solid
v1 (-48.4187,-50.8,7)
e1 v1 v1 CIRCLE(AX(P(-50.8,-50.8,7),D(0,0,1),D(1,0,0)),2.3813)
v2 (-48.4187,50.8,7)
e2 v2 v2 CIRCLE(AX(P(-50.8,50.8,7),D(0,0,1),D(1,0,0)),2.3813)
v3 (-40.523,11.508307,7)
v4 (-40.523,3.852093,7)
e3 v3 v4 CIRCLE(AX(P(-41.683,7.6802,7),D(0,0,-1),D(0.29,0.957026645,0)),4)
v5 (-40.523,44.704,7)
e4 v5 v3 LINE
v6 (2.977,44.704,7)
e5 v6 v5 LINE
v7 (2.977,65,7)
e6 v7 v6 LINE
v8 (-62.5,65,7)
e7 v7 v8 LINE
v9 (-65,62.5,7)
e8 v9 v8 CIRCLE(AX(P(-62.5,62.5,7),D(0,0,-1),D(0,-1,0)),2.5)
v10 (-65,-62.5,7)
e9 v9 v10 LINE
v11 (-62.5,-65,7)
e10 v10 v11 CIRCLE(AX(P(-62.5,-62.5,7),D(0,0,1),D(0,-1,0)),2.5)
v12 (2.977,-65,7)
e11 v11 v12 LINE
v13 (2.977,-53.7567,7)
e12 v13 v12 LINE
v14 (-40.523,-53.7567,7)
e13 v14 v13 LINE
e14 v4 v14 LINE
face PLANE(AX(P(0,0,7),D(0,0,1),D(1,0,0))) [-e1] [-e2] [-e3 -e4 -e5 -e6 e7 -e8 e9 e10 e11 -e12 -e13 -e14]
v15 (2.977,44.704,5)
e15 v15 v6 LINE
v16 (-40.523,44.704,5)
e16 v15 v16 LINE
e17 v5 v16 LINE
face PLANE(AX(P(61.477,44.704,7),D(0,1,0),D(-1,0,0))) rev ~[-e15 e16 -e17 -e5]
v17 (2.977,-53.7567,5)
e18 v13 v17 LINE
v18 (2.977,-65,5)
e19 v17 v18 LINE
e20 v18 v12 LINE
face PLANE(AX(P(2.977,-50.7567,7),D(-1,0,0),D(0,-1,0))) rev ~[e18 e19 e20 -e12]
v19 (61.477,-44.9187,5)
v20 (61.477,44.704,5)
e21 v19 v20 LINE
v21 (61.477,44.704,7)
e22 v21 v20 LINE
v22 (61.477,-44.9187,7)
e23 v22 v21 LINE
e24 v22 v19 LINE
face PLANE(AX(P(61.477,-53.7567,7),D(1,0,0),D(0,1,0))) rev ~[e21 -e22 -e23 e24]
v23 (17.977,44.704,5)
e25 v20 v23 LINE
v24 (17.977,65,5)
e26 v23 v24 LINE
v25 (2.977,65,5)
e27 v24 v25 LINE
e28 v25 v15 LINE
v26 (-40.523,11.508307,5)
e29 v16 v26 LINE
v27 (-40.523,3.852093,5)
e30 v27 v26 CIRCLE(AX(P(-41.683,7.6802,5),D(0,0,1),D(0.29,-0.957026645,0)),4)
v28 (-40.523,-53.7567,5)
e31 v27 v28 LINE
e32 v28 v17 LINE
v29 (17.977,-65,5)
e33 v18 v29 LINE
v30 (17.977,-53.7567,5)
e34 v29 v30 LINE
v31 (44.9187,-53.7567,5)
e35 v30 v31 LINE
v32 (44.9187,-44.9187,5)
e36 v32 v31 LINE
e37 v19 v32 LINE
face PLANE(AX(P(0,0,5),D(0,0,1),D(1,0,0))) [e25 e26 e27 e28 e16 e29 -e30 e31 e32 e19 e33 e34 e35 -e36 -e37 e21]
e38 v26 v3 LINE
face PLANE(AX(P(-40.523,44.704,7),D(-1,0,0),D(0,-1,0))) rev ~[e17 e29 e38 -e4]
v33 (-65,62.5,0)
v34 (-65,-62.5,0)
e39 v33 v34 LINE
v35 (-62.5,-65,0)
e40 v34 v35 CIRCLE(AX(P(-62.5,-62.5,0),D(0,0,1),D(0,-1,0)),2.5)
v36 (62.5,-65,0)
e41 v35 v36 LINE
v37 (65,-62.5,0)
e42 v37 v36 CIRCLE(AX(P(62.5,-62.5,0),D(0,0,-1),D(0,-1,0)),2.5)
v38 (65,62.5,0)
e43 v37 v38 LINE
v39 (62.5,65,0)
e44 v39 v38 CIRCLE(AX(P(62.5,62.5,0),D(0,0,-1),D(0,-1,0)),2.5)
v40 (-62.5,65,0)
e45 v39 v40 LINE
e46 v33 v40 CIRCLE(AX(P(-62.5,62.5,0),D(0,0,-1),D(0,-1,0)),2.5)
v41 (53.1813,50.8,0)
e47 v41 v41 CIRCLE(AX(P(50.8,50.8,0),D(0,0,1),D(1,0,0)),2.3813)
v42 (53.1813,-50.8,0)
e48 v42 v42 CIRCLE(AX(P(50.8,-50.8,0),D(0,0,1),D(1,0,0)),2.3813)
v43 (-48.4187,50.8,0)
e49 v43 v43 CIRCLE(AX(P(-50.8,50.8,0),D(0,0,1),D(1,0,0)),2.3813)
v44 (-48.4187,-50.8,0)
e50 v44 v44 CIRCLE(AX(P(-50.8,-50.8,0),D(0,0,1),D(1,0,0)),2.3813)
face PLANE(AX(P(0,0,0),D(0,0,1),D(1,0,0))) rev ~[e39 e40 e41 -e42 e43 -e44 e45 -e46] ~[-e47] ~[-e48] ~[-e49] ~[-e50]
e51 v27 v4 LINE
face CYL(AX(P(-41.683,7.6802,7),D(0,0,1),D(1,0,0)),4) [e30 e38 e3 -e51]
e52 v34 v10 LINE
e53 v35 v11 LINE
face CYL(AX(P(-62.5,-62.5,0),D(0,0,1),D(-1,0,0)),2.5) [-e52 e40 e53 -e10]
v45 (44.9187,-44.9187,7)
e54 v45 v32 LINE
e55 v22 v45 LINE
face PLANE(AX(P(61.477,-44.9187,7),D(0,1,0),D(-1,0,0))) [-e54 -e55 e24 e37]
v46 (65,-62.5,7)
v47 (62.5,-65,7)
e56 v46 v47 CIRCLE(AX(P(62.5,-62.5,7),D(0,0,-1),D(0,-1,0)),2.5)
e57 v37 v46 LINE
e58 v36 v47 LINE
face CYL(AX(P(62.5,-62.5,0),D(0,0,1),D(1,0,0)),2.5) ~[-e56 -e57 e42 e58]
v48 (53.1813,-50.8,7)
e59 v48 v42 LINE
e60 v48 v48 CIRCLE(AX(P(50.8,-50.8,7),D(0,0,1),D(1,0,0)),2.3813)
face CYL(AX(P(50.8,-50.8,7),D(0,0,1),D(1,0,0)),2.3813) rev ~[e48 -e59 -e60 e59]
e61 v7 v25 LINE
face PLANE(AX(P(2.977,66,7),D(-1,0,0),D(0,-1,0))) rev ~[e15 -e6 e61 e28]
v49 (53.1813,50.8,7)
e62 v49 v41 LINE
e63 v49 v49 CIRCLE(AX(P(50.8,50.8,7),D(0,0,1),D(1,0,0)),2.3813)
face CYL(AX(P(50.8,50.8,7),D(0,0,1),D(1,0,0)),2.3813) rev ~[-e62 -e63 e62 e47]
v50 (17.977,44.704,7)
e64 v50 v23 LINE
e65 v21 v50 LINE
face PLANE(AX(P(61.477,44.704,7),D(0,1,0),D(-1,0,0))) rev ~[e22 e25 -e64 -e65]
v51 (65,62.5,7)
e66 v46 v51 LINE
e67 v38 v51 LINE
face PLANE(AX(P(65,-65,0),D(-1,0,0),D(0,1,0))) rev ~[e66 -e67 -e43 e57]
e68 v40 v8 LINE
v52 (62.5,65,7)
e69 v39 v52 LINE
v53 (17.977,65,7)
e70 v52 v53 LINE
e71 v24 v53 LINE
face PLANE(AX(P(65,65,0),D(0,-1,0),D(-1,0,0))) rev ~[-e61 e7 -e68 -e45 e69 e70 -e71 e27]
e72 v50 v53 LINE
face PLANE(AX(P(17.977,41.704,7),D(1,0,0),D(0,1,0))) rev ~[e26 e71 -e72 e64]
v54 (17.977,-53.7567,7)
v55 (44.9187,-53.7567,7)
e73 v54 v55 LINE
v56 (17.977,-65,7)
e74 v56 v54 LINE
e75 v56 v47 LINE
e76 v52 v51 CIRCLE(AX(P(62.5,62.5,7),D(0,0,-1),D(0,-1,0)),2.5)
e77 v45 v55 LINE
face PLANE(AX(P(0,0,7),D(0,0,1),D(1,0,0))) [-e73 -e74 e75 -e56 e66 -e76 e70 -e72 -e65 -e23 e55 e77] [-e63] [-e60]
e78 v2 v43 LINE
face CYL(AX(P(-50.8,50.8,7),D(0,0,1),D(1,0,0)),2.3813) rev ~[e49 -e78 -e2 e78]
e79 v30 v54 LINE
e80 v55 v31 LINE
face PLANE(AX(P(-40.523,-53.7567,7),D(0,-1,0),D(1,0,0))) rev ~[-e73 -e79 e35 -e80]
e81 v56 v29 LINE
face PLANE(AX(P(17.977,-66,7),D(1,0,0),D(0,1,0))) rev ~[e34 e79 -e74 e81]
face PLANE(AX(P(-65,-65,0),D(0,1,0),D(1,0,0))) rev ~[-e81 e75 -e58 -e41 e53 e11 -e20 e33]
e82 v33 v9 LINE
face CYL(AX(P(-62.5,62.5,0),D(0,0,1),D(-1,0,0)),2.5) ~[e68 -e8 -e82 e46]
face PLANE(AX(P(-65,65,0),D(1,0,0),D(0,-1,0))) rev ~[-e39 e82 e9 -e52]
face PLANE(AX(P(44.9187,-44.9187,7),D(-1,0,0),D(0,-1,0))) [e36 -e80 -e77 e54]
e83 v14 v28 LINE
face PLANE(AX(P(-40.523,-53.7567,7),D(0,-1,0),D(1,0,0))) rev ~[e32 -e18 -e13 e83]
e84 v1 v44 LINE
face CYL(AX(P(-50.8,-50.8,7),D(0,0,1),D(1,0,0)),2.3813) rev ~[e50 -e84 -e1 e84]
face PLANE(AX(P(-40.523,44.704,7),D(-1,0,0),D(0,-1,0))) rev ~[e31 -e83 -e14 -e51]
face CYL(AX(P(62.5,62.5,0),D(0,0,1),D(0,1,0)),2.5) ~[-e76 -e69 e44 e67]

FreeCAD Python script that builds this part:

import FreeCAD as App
import Part
import Sketcher


def edges_at(feature, points):
    """Names of the edges that pass closest to the given points."""
    edges = feature.Shape.Edges
    near = lambda p: min(range(len(edges)), key=lambda i: edges[i].distToShape(Part.Vertex(*p))[0])
    return sorted({f"Edge{near(p) + 1}" for p in points})


def add_polygon(sketch, points):
    """Adds a closed chain of lines whose ends are joined by coincident constraints."""
    first, n = sketch.GeometryCount, len(points)
    for a, b in zip(points, points[1:] + points[:1]):
        sketch.addGeometry(Part.LineSegment(App.Vector(*a, 0), App.Vector(*b, 0)), False)
    for i in range(n):
        sketch.addConstraint(Sketcher.Constraint("Coincident", first + i, 2, first + (i + 1) % n, 1))

doc = App.newDocument("Part")
body = doc.addObject("PartDesign::Body", "Body")

# Sketch on XY plane
sketch1 = body.newObject("Sketcher::SketchObject", "Sketch")
sketch1.AttachmentSupport = (doc.getObject("XY_Plane"), [""])
sketch1.MapMode = "FlatFace"
add_polygon(sketch1, [(-65, 65), (-65, -65), (65, -65), (65, 65)])  # lines 0-3
sketch1.addConstraint([
    Sketcher.Constraint("Vertical", 0),
    Sketcher.Constraint("Horizontal", 1),
    Sketcher.Constraint("Vertical", 2),
    Sketcher.Constraint("Horizontal", 3),
    Sketcher.Constraint("Symmetric", 0, 2, 2, 2, -1, 1),
    Sketcher.Constraint("Equal", 3, 0),
    Sketcher.Constraint("DistanceX", 1, 1, 1, 2, 130.0),
])
pad1 = body.newObject("PartDesign::Pad", "Pad")
pad1.Profile = sketch1
pad1.Length = 7
doc.recompute()

fillet = body.newObject("PartDesign::Fillet", "Fillet")
fillet.Base = (pad1, edges_at(pad1, [
    (-65, 65, 3.5),
    (65, 65, 3.5),
    (65, -65, 3.5),
    (-65, -65, 3.5),
]))
fillet.Radius = 2.5

# Sketch on XY plane
sketch2 = body.newObject("Sketcher::SketchObject", "Sketch001")
sketch2.AttachmentSupport = (doc.getObject("XY_Plane"), [""])
sketch2.MapMode = "FlatFace"
sketch2.AttachmentOffset = App.Placement(App.Vector(0, 0, 7), App.Rotation())
add_polygon(sketch2, [(-41, 45), (-41, -54), (61, -54), (61, 45)])  # lines 0-3
sketch2.addConstraint([
    Sketcher.Constraint("Vertical", 0),
    Sketcher.Constraint("Horizontal", 1),
    Sketcher.Constraint("Vertical", 2),
    Sketcher.Constraint("Horizontal", 3),
    Sketcher.Constraint("DistanceX", 1, 1, 1, 2, 102.0),
    Sketcher.Constraint("DistanceY", 0, 2, 0, 1, 98.4607),
    Sketcher.Constraint("DistanceX", 0, 2, -1, 1, 40.523),
    Sketcher.Constraint("DistanceY", -1, 1, 2, 2, 44.704),
])
pocket1 = body.newObject("PartDesign::Pocket", "Pocket")
pocket1.Profile = sketch2
pocket1.Length = 2

# Sketch on XY plane
sketch3 = body.newObject("Sketcher::SketchObject", "Sketch002")
sketch3.AttachmentSupport = (doc.getObject("XY_Plane"), [""])
sketch3.MapMode = "FlatFace"
sketch3.AttachmentOffset = App.Placement(App.Vector(0, 0, 7), App.Rotation())
add_polygon(sketch3, [(3, -51), (3, -66), (18, -66), (18, -51)])  # lines 0-3
sketch3.addConstraint([
    Sketcher.Constraint("Vertical", 0),
    Sketcher.Constraint("Horizontal", 1),
    Sketcher.Constraint("Vertical", 2),
    Sketcher.Constraint("Horizontal", 3),
    Sketcher.Constraint("DistanceX", 1, 1, 1, 2, 15.0),
    Sketcher.Constraint("DistanceY", 0, 2, -1, 1, 66.0),
    Sketcher.Constraint("DistanceY", 0, 2, 0, 1, 15.2433),
    Sketcher.Constraint("DistanceX", -1, 1, 0, 2, 2.977),
])
pocket2 = body.newObject("PartDesign::Pocket", "Pocket001")
pocket2.Profile = sketch3
pocket2.Length = 2

# Sketch on XY plane
sketch4 = body.newObject("Sketcher::SketchObject", "Sketch003")
sketch4.AttachmentSupport = (doc.getObject("XY_Plane"), [""])
sketch4.MapMode = "FlatFace"
sketch4.AttachmentOffset = App.Placement(App.Vector(0, 0, 7), App.Rotation())
add_polygon(sketch4, [(3, 66), (3, 42), (18, 42), (18, 66)])  # lines 0-3
sketch4.addConstraint([
    Sketcher.Constraint("Vertical", 0),
    Sketcher.Constraint("Horizontal", 1),
    Sketcher.Constraint("Vertical", 2),
    Sketcher.Constraint("Horizontal", 3),
    Sketcher.Constraint("DistanceX", 1, 1, 1, 2, 15.0),
    Sketcher.Constraint("DistanceY", -1, 1, 2, 2, 66.0),
    Sketcher.Constraint("DistanceY", 0, 2, 0, 1, 24.296),
    Sketcher.Constraint("DistanceX", -1, 1, 0, 2, 2.977),
])
pocket3 = body.newObject("PartDesign::Pocket", "Pocket002")
pocket3.Profile = sketch4
pocket3.Length = 2

# Sketch on XY plane
sketch5 = body.newObject("Sketcher::SketchObject", "Sketch004")
sketch5.AttachmentSupport = (doc.getObject("XY_Plane"), [""])
sketch5.MapMode = "FlatFace"
sketch5.AttachmentOffset = App.Placement(App.Vector(0, 0, 7), App.Rotation())
sketch5.addGeometry(Part.Circle(App.Vector(-41.7, 7.7, 0), App.Vector(0, 0, 1), 4), False)
sketch5.addConstraint([
    Sketcher.Constraint("Diameter", 0, 8.0),
    Sketcher.Constraint("DistanceX", 0, 3, -1, 1, 41.683),
    Sketcher.Constraint("DistanceY", -1, 1, 0, 3, 7.6802),
])
pad2 = body.newObject("PartDesign::Pad", "Pad001")
pad2.Profile = sketch5
pad2.Length = 2
pad2.Reversed = True

# Sketch on XY plane
sketch6 = body.newObject("Sketcher::SketchObject", "Sketch005")
sketch6.AttachmentSupport = (doc.getObject("XY_Plane"), [""])
sketch6.MapMode = "FlatFace"
sketch6.AttachmentOffset = App.Placement(App.Vector(0, 0, 7), App.Rotation())
add_polygon(sketch6, [(45, -45), (45, -54), (61, -54), (61, -45)])  # lines 0-3
sketch6.addConstraint([
    Sketcher.Constraint("Vertical", 0),
    Sketcher.Constraint("Horizontal", 1),
    Sketcher.Constraint("Vertical", 2),
    Sketcher.Constraint("Horizontal", 3),
    Sketcher.Constraint("DistanceY", 0, 2, 0, 1, 8.838),
    Sketcher.Constraint("DistanceX", 1, 1, 1, 2, 16.5583),
    Sketcher.Constraint("DistanceX", -1, 1, 1, 2, 61.477),
    Sketcher.Constraint("DistanceY", 0, 2, -1, 1, 53.7567),
])
pad3 = body.newObject("PartDesign::Pad", "Pad002")
pad3.Profile = sketch6
pad3.Length = 2
pad3.Reversed = True

# Sketch on XY plane
sketch7 = body.newObject("Sketcher::SketchObject", "Sketch006")
sketch7.AttachmentSupport = (doc.getObject("XY_Plane"), [""])
sketch7.MapMode = "FlatFace"
sketch7.AttachmentOffset = App.Placement(App.Vector(0, 0, 7), App.Rotation())
sketch7.addGeometry(Part.Circle(App.Vector(-50.8, -50.8, 0), App.Vector(0, 0, 1), 2.4), False)
sketch7.addConstraint([
    Sketcher.Constraint("Diameter", 0, 4.7626),
    Sketcher.Constraint("DistanceX", 0, 3, -1, 1, 50.8),
    Sketcher.Constraint("DistanceY", 0, 3, -1, 1, 50.8),
])
pocket4 = body.newObject("PartDesign::Pocket", "Pocket003")
pocket4.Profile = sketch7
pocket4.Length = 7

# Sketch on XY plane
sketch8 = body.newObject("Sketcher::SketchObject", "Sketch007")
sketch8.AttachmentSupport = (doc.getObject("XY_Plane"), [""])
sketch8.MapMode = "FlatFace"
sketch8.AttachmentOffset = App.Placement(App.Vector(0, 0, 7), App.Rotation())
sketch8.addGeometry(Part.Circle(App.Vector(50.8, -50.8, 0), App.Vector(0, 0, 1), 2.4), False)
sketch8.addConstraint([
    Sketcher.Constraint("Diameter", 0, 4.7626),
    Sketcher.Constraint("DistanceX", -1, 1, 0, 3, 50.8),
    Sketcher.Constraint("DistanceY", 0, 3, -1, 1, 50.8),
])
pocket5 = body.newObject("PartDesign::Pocket", "Pocket004")
pocket5.Profile = sketch8
pocket5.Length = 7

# Sketch on XY plane
sketch9 = body.newObject("Sketcher::SketchObject", "Sketch008")
sketch9.AttachmentSupport = (doc.getObject("XY_Plane"), [""])
sketch9.MapMode = "FlatFace"
sketch9.AttachmentOffset = App.Placement(App.Vector(0, 0, 7), App.Rotation())
sketch9.addGeometry(Part.Circle(App.Vector(-50.8, 50.8, 0), App.Vector(0, 0, 1), 2.4), False)
sketch9.addConstraint([
    Sketcher.Constraint("Diameter", 0, 4.7626),
    Sketcher.Constraint("DistanceX", 0, 3, -1, 1, 50.8),
    Sketcher.Constraint("DistanceY", -1, 1, 0, 3, 50.8),
])
pocket6 = body.newObject("PartDesign::Pocket", "Pocket005")
pocket6.Profile = sketch9
pocket6.Length = 7

# Sketch on XY plane
sketch10 = body.newObject("Sketcher::SketchObject", "Sketch009")
sketch10.AttachmentSupport = (doc.getObject("XY_Plane"), [""])
sketch10.MapMode = "FlatFace"
sketch10.AttachmentOffset = App.Placement(App.Vector(0, 0, 7), App.Rotation())
sketch10.addGeometry(Part.Circle(App.Vector(50.8, 50.8, 0), App.Vector(0, 0, 1), 2.4), False)
sketch10.addConstraint([
    Sketcher.Constraint("Diameter", 0, 4.7626),
    Sketcher.Constraint("DistanceX", -1, 1, 0, 3, 50.8),
    Sketcher.Constraint("DistanceY", -1, 1, 0, 3, 50.8),
])
pocket7 = body.newObject("PartDesign::Pocket", "Pocket006")
pocket7.Profile = sketch10
pocket7.Length = 7

doc.recompute()
